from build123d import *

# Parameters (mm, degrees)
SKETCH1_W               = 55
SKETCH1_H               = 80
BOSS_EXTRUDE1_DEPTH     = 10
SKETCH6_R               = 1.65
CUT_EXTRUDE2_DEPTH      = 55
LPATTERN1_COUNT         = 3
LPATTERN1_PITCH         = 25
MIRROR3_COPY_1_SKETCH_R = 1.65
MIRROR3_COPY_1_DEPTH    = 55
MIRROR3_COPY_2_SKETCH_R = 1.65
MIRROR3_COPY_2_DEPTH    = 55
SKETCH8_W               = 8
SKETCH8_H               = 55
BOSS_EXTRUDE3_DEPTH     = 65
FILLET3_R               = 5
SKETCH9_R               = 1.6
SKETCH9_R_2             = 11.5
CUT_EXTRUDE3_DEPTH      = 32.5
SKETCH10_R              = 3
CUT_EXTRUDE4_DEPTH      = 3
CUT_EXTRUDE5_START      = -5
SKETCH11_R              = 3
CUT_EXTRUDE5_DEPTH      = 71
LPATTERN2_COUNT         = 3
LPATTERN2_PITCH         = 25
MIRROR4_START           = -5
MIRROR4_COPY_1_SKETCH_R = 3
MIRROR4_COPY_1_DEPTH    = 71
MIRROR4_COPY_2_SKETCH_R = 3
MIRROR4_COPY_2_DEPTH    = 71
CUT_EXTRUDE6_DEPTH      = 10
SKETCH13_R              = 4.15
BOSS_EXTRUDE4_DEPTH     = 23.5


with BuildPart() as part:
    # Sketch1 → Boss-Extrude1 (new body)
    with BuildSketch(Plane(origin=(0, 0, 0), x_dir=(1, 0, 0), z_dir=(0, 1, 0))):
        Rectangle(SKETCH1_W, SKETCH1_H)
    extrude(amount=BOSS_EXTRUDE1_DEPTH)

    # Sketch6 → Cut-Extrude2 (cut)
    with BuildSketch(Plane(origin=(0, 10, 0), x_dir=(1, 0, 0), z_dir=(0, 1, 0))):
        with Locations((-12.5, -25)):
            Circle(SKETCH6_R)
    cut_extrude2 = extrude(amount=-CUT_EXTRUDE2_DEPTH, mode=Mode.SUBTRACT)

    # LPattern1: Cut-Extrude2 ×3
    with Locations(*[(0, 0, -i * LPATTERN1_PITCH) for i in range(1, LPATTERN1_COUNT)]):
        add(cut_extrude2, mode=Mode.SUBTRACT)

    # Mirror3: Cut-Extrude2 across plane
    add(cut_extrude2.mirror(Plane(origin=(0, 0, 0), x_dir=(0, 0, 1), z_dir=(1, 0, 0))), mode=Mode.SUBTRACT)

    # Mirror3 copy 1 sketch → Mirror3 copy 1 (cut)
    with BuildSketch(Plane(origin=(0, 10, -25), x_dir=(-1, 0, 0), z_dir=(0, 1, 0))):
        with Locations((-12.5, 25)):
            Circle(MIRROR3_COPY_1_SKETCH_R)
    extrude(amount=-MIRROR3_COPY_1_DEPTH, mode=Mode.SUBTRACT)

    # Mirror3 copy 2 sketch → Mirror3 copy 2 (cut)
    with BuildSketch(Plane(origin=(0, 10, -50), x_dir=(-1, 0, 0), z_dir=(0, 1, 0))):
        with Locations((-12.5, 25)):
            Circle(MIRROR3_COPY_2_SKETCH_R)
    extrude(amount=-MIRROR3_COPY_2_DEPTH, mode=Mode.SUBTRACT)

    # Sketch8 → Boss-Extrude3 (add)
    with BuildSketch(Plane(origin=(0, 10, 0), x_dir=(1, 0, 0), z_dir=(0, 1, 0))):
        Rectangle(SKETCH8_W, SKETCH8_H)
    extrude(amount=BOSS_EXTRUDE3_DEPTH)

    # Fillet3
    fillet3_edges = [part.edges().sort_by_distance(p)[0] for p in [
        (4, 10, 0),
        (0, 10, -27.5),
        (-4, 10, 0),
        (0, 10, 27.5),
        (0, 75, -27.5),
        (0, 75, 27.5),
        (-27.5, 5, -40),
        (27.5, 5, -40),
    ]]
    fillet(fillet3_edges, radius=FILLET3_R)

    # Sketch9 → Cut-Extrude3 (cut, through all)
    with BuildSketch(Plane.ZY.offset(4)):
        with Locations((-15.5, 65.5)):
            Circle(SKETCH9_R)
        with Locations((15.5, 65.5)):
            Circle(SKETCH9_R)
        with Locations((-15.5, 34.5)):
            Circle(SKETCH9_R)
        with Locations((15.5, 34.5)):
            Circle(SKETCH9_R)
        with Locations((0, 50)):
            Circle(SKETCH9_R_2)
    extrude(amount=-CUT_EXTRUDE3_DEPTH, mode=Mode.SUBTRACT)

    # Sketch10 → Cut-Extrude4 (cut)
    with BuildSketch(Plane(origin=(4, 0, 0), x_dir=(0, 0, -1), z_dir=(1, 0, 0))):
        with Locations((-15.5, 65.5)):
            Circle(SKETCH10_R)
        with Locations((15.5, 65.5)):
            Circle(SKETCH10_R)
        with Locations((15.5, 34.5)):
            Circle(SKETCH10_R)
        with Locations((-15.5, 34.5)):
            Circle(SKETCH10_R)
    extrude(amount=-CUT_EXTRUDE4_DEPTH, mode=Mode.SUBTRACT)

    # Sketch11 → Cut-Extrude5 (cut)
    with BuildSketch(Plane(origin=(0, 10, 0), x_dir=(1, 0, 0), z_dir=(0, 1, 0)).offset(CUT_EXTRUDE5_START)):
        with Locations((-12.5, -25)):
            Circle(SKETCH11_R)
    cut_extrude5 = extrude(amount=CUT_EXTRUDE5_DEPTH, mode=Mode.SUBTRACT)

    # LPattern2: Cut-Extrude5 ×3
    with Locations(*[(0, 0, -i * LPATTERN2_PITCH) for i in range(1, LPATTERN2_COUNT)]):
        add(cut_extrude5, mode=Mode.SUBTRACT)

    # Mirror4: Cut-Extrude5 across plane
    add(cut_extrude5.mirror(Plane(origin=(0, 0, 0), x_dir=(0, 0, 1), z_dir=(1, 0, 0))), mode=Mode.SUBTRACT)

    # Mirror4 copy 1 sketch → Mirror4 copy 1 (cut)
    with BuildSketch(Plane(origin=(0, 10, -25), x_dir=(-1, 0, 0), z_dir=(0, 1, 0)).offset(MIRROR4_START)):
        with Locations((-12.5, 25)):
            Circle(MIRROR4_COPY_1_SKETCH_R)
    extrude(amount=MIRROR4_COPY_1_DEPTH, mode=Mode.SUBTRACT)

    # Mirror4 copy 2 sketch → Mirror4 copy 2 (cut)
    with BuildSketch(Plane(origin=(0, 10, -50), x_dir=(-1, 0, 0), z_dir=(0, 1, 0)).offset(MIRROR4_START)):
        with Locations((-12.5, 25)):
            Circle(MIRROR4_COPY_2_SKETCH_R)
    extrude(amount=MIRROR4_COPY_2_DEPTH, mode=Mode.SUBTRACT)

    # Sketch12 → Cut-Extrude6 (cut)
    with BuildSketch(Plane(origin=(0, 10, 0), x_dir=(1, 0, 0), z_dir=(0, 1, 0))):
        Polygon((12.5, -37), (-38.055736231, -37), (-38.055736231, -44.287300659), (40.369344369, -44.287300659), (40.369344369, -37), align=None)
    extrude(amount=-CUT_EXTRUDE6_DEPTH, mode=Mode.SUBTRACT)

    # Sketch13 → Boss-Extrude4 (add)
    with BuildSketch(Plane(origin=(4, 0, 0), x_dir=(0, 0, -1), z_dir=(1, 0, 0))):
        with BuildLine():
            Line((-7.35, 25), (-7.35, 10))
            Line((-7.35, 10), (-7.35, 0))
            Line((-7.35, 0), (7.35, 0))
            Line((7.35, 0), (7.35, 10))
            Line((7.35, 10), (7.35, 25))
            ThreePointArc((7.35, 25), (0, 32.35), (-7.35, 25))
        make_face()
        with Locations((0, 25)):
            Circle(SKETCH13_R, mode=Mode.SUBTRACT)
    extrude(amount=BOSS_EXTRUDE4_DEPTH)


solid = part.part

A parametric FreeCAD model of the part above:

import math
import FreeCAD as App
import Part
import Sketcher
from FreeCAD import Vector
Q = App.Units.Quantity


def edges_at(feature, points):
    """Names of the edges that pass closest to the given points."""
    edges = feature.Shape.Edges
    near = lambda p: min(range(len(edges)), key=lambda i: edges[i].distToShape(Part.Vertex(*p))[0])
    return sorted({f"Edge{near(p) + 1}" for p in points})

doc = App.newDocument("Part")
body = doc.addObject("PartDesign::Body", "Body")

# Sketch on XZ plane
sketch1 = body.newObject("Sketcher::SketchObject", "Sketch")
sketch1.AttachmentSupport = (doc.getObject("XZ_Plane"), [""])
sketch1.MapMode = "FlatFace"
sketch1.addGeometry(Part.LineSegment(Vector(-28, -40, 0), Vector(-28, 40, 0)), False)
sketch1.addGeometry(Part.LineSegment(Vector(-28, 40, 0), Vector(28, 40, 0)), False)
sketch1.addGeometry(Part.LineSegment(Vector(28, 40, 0), Vector(28, -40, 0)), False)
sketch1.addGeometry(Part.LineSegment(Vector(28, -40, 0), Vector(-28, -40, 0)), False)
sketch1.addConstraint(Sketcher.Constraint("Coincident", 0, 2, 1, 1))
sketch1.addConstraint(Sketcher.Constraint("Coincident", 1, 2, 2, 1))
sketch1.addConstraint(Sketcher.Constraint("Coincident", 2, 2, 3, 1))
sketch1.addConstraint(Sketcher.Constraint("Coincident", 3, 2, 0, 1))
sketch1.addConstraint(Sketcher.Constraint("Vertical", 0))
sketch1.addConstraint(Sketcher.Constraint("Horizontal", 1))
sketch1.addConstraint(Sketcher.Constraint("Vertical", 2))
sketch1.addConstraint(Sketcher.Constraint("Horizontal", 3))
sketch1.addConstraint(Sketcher.Constraint("Symmetric", 0, 2, 2, 2, -1, 1))
sketch1.addConstraint(Sketcher.Constraint("DistanceX", 1, 1, 1, 2, Q("55 mm")))
sketch1.addConstraint(Sketcher.Constraint("DistanceY", 0, 1, 0, 2, Q("80 mm")))
pad1 = body.newObject("PartDesign::Pad", "Pad")
pad1.Profile = sketch1
pad1.Length = 10
pad1.Reversed = True

# Sketch on XZ plane
sketch2 = body.newObject("Sketcher::SketchObject", "Sketch001")
sketch2.AttachmentSupport = (doc.getObject("XZ_Plane"), [""])
sketch2.MapMode = "FlatFace"
sketch2.AttachmentOffset = App.Placement(Vector(0, 0, -10), App.Rotation())
sketch2.addGeometry(Part.Circle(Vector(-12.5, 25, 0), Vector(0, 0, 1), 1.6), False)
sketch2.addConstraint(Sketcher.Constraint("Diameter", 0, Q("3.3 mm")))
sketch2.addConstraint(Sketcher.Constraint("DistanceY", -1, 1, 0, 3, Q("25 mm")))
sketch2.addConstraint(Sketcher.Constraint("DistanceX", 0, 3, -1, 1, Q("12.5 mm")))
pocket1 = body.newObject("PartDesign::Pocket", "Pocket")
pocket1.Profile = sketch2
pocket1.Length = 55
pocket1.Reversed = True
doc.recompute()

linearpattern = body.newObject("PartDesign::LinearPattern", "LinearPattern")
linearpattern.Originals = [pocket1]
linearpattern.Direction = (doc.getObject("Z_Axis"), [""])
linearpattern.Mode = "offset"
linearpattern.Offset = 25
linearpattern.Occurrences = 3
linearpattern.Reversed = True
body.Tip = linearpattern
doc.recompute()

mirrored = body.newObject("PartDesign::Mirrored", "Mirrored")
mirrored.Originals = [pocket1]
mirrored.MirrorPlane = (doc.getObject("YZ_Plane"), [""])
body.Tip = mirrored

# Sketch on XZ plane
sketch3 = body.newObject("Sketcher::SketchObject", "Sketch002")
sketch3.AttachmentSupport = (doc.getObject("XZ_Plane"), [""])
sketch3.MapMode = "FlatFace"
sketch3.AttachmentOffset = App.Placement(Vector(0, 0, -10), App.Rotation())
sketch3.addGeometry(Part.Circle(Vector(12.5, 0, 0), Vector(0, 0, 1), 1.6), False)
sketch3.addConstraint(Sketcher.Constraint("PointOnObject", 0, 3, -1))
sketch3.addConstraint(Sketcher.Constraint("Diameter", 0, Q("3.3 mm")))
sketch3.addConstraint(Sketcher.Constraint("DistanceX", -1, 1, 0, 3, Q("12.5 mm")))
pocket2 = body.newObject("PartDesign::Pocket", "Pocket001")
pocket2.Profile = sketch3
pocket2.Length = 55
pocket2.Reversed = True

# Sketch on XZ plane
sketch4 = body.newObject("Sketcher::SketchObject", "Sketch003")
sketch4.AttachmentSupport = (doc.getObject("XZ_Plane"), [""])
sketch4.MapMode = "FlatFace"
sketch4.AttachmentOffset = App.Placement(Vector(0, 0, -10), App.Rotation())
sketch4.addGeometry(Part.Circle(Vector(12.5, -25, 0), Vector(0, 0, 1), 1.6), False)
sketch4.addConstraint(Sketcher.Constraint("Diameter", 0, Q("3.3 mm")))
sketch4.addConstraint(Sketcher.Constraint("DistanceY", 0, 3, -1, 1, Q("25 mm")))
sketch4.addConstraint(Sketcher.Constraint("DistanceX", -1, 1, 0, 3, Q("12.5 mm")))
pocket3 = body.newObject("PartDesign::Pocket", "Pocket002")
pocket3.Profile = sketch4
pocket3.Length = 55
pocket3.Reversed = True

# Sketch on XZ plane
sketch5 = body.newObject("Sketcher::SketchObject", "Sketch004")
sketch5.AttachmentSupport = (doc.getObject("XZ_Plane"), [""])
sketch5.MapMode = "FlatFace"
sketch5.AttachmentOffset = App.Placement(Vector(0, 0, -10), App.Rotation())
sketch5.addGeometry(Part.LineSegment(Vector(-4, -28, 0), Vector(-4, 28, 0)), False)
sketch5.addGeometry(Part.LineSegment(Vector(-4, 28, 0), Vector(4, 28, 0)), False)
sketch5.addGeometry(Part.LineSegment(Vector(4, 28, 0), Vector(4, -28, 0)), False)
sketch5.addGeometry(Part.LineSegment(Vector(4, -28, 0), Vector(-4, -28, 0)), False)
sketch5.addConstraint(Sketcher.Constraint("Coincident", 0, 2, 1, 1))
sketch5.addConstraint(Sketcher.Constraint("Coincident", 1, 2, 2, 1))
sketch5.addConstraint(Sketcher.Constraint("Coincident", 2, 2, 3, 1))
sketch5.addConstraint(Sketcher.Constraint("Coincident", 3, 2, 0, 1))
sketch5.addConstraint(Sketcher.Constraint("Vertical", 0))
sketch5.addConstraint(Sketcher.Constraint("Horizontal", 1))
sketch5.addConstraint(Sketcher.Constraint("Vertical", 2))
sketch5.addConstraint(Sketcher.Constraint("Horizontal", 3))
sketch5.addConstraint(Sketcher.Constraint("Symmetric", 0, 2, 2, 2, -1, 1))
sketch5.addConstraint(Sketcher.Constraint("DistanceX", 1, 1, 1, 2, Q("8 mm")))
sketch5.addConstraint(Sketcher.Constraint("DistanceY", 0, 1, 0, 2, Q("55 mm")))
pad2 = body.newObject("PartDesign::Pad", "Pad001")
pad2.Profile = sketch5
pad2.Length = 65
pad2.Reversed = True
doc.recompute()

fillet = body.newObject("PartDesign::Fillet", "Fillet")
fillet.Base = (pad2, edges_at(pad2, [
    (4, 10, 0),
    (0, 10, -27.5),
    (-4, 10, 0),
    (0, 10, 27.5),
    (0, 75, -27.5),
    (0, 75, 27.5),
    (-27.5, 5, -40),
    (27.5, 5, -40),
]))
fillet.Radius = 5

# Sketch on YZ plane
sketch6 = body.newObject("Sketcher::SketchObject", "Sketch005")
sketch6.AttachmentSupport = (doc.getObject("YZ_Plane"), [""])
sketch6.MapMode = "FlatFace"
sketch6.AttachmentOffset = App.Placement(Vector(0, 0, -4), App.Rotation())
sketch6.addGeometry(Part.Circle(Vector(65.5, -15.5, 0), Vector(0, 0, 1), 1.6), False)
sketch6.addGeometry(Part.Circle(Vector(65.5, 15.5, 0), Vector(0, 0, 1), 1.6), False)
sketch6.addGeometry(Part.Circle(Vector(34.5, -15.5, 0), Vector(0, 0, 1), 1.6), False)
sketch6.addGeometry(Part.Circle(Vector(34.5, 15.5, 0), Vector(0, 0, 1), 1.6), False)
sketch6.addGeometry(Part.Circle(Vector(50, 0, 0), Vector(0, 0, 1), 11.5), False)
sketch6.addConstraint(Sketcher.Constraint("Equal", 0, 1))
sketch6.addConstraint(Sketcher.Constraint("Equal", 1, 2))
sketch6.addConstraint(Sketcher.Constraint("Equal", 2, 3))
sketch6.addConstraint(Sketcher.Constraint("Symmetric", 0, 3, 1, 3, -1))
sketch6.addConstraint(Sketcher.Constraint("Symmetric", 2, 3, 3, 3, -1))
sketch6.addConstraint(Sketcher.Constraint("PointOnObject", 4, 3, -1))
sketch6.addConstraint(Sketcher.Constraint("Horizontal", 0, 3, 2, 3))
sketch6.addConstraint(Sketcher.Constraint("Diameter", 4, Q("23 mm")))
sketch6.addConstraint(Sketcher.Constraint("Diameter", 0, Q("3.2 mm")))
sketch6.addConstraint(Sketcher.Constraint("DistanceX", -1, 1, 4, 3, Q("50 mm")))
sketch6.addConstraint(Sketcher.Constraint("DistanceY", 0, 3, 1, 3, Q("31 mm")))
sketch6.addConstraint(Sketcher.Constraint("DistanceX", 2, 3, 0, 3, Q("31 mm")))
sketch6.addConstraint(Sketcher.Constraint("DistanceX", -1, 1, 0, 3, Q("65.5 mm")))
pocket4 = body.newObject("PartDesign::Pocket", "Pocket003")
pocket4.Profile = sketch6
pocket4.Type = "ThroughAll"
pocket4.Reversed = True

# Sketch on YZ plane
sketch7 = body.newObject("Sketcher::SketchObject", "Sketch006")
sketch7.AttachmentSupport = (doc.getObject("YZ_Plane"), [""])
sketch7.MapMode = "FlatFace"
sketch7.AttachmentOffset = App.Placement(Vector(0, 0, 4), App.Rotation())
sketch7.addGeometry(Part.Circle(Vector(65.5, 15.5, 0), Vector(0, 0, 1), 3), False)
sketch7.addGeometry(Part.Circle(Vector(65.5, -15.5, 0), Vector(0, 0, 1), 3), False)
sketch7.addGeometry(Part.Circle(Vector(34.5, -15.5, 0), Vector(0, 0, 1), 3), False)
sketch7.addGeometry(Part.Circle(Vector(34.5, 15.5, 0), Vector(0, 0, 1), 3), False)
sketch7.addConstraint(Sketcher.Constraint("Equal", 0, 1))
sketch7.addConstraint(Sketcher.Constraint("Equal", 1, 2))
sketch7.addConstraint(Sketcher.Constraint("Equal", 2, 3))
sketch7.addConstraint(Sketcher.Constraint("Symmetric", 0, 3, 1, 3, -1))
sketch7.addConstraint(Sketcher.Constraint("Symmetric", 2, 3, 3, 3, -1))
sketch7.addConstraint(Sketcher.Constraint("Horizontal", 1, 3, 2, 3))
sketch7.addConstraint(Sketcher.Constraint("Diameter", 0, Q("6 mm")))
sketch7.addConstraint(Sketcher.Constraint("DistanceY", 1, 3, 0, 3, Q("31 mm")))
sketch7.addConstraint(Sketcher.Constraint("DistanceX", 2, 3, 1, 3, Q("31 mm")))
sketch7.addConstraint(Sketcher.Constraint("DistanceX", -1, 1, 0, 3, Q("65.5 mm")))
pocket5 = body.newObject("PartDesign::Pocket", "Pocket004")
pocket5.Profile = sketch7
pocket5.Length = 3

# Sketch on XZ plane
sketch8 = body.newObject("Sketcher::SketchObject", "Sketch007")
sketch8.AttachmentSupport = (doc.getObject("XZ_Plane"), [""])
sketch8.MapMode = "FlatFace"
sketch8.AttachmentOffset = App.Placement(Vector(0, 0, -5), App.Rotation())
sketch8.addGeometry(Part.Circle(Vector(-12.5, 25, 0), Vector(0, 0, 1), 3), False)
sketch8.addConstraint(Sketcher.Constraint("Diameter", 0, Q("6 mm")))
sketch8.addConstraint(Sketcher.Constraint("DistanceY", -1, 1, 0, 3, Q("25 mm")))
sketch8.addConstraint(Sketcher.Constraint("DistanceX", 0, 3, -1, 1, Q("12.5 mm")))
pocket6 = body.newObject("PartDesign::Pocket", "Pocket005")
pocket6.Profile = sketch8
pocket6.Length = 71
doc.recompute()

linearpattern2 = body.newObject("PartDesign::LinearPattern", "LinearPattern001")
linearpattern2.Originals = [pocket6]
linearpattern2.Direction = (doc.getObject("Z_Axis"), [""])
linearpattern2.Mode = "offset"
linearpattern2.Offset = 25
linearpattern2.Occurrences = 3
linearpattern2.Reversed = True
body.Tip = linearpattern2
doc.recompute()

mirrored2 = body.newObject("PartDesign::Mirrored", "Mirrored001")
mirrored2.Originals = [pocket6]
mirrored2.MirrorPlane = (doc.getObject("YZ_Plane"), [""])
body.Tip = mirrored2

# Sketch on XZ plane
sketch9 = body.newObject("Sketcher::SketchObject", "Sketch008")
sketch9.AttachmentSupport = (doc.getObject("XZ_Plane"), [""])
sketch9.MapMode = "FlatFace"
sketch9.AttachmentOffset = App.Placement(Vector(0, 0, -5), App.Rotation())
sketch9.addGeometry(Part.Circle(Vector(12.5, 0, 0), Vector(0, 0, 1), 3), False)
sketch9.addConstraint(Sketcher.Constraint("PointOnObject", 0, 3, -1))
sketch9.addConstraint(Sketcher.Constraint("Diameter", 0, Q("6 mm")))
sketch9.addConstraint(Sketcher.Constraint("DistanceX", -1, 1, 0, 3, Q("12.5 mm")))
pocket7 = body.newObject("PartDesign::Pocket", "Pocket006")
pocket7.Profile = sketch9
pocket7.Length = 71

# Sketch on XZ plane
sketch10 = body.newObject("Sketcher::SketchObject", "Sketch009")
sketch10.AttachmentSupport = (doc.getObject("XZ_Plane"), [""])
sketch10.MapMode = "FlatFace"
sketch10.AttachmentOffset = App.Placement(Vector(0, 0, -5), App.Rotation())
sketch10.addGeometry(Part.Circle(Vector(12.5, -25, 0), Vector(0, 0, 1), 3), False)
sketch10.addConstraint(Sketcher.Constraint("Diameter", 0, Q("6 mm")))
sketch10.addConstraint(Sketcher.Constraint("DistanceY", 0, 3, -1, 1, Q("25 mm")))
sketch10.addConstraint(Sketcher.Constraint("DistanceX", -1, 1, 0, 3, Q("12.5 mm")))
pocket8 = body.newObject("PartDesign::Pocket", "Pocket007")
pocket8.Profile = sketch10
pocket8.Length = 71

# Sketch on XZ plane
sketch11 = body.newObject("Sketcher::SketchObject", "Sketch010")
sketch11.AttachmentSupport = (doc.getObject("XZ_Plane"), [""])
sketch11.MapMode = "FlatFace"
sketch11.AttachmentOffset = App.Placement(Vector(0, 0, -10), App.Rotation())
sketch11.addGeometry(Part.LineSegment(Vector(-38, 37, 0), Vector(-38, 44, 0)), False)
sketch11.addGeometry(Part.LineSegment(Vector(-38, 44, 0), Vector(40, 44, 0)), False)
sketch11.addGeometry(Part.LineSegment(Vector(40, 44, 0), Vector(40, 37, 0)), False)
sketch11.addGeometry(Part.LineSegment(Vector(40, 37, 0), Vector(-38, 37, 0)), False)
sketch11.addConstraint(Sketcher.Constraint("Coincident", 0, 2, 1, 1))
sketch11.addConstraint(Sketcher.Constraint("Coincident", 1, 2, 2, 1))
sketch11.addConstraint(Sketcher.Constraint("Coincident", 2, 2, 3, 1))
sketch11.addConstraint(Sketcher.Constraint("Coincident", 3, 2, 0, 1))
sketch11.addConstraint(Sketcher.Constraint("Vertical", 0))
sketch11.addConstraint(Sketcher.Constraint("Horizontal", 1))
sketch11.addConstraint(Sketcher.Constraint("Vertical", 2))
sketch11.addConstraint(Sketcher.Constraint("Horizontal", 3))
sketch11.addConstraint(Sketcher.Constraint("DistanceY", -1, 1, 2, 2, Q("37 mm")))
sketch11.addConstraint(Sketcher.Constraint("DistanceY", 0, 1, 0, 2, Q("7.287301 mm")))
sketch11.addConstraint(Sketcher.Constraint("DistanceX", 1, 1, 1, 2, Q("78.425081 mm")))
sketch11.addConstraint(Sketcher.Constraint("DistanceX", 0, 2, -1, 1, Q("38.055736 mm")))
pocket9 = body.newObject("PartDesign::Pocket", "Pocket008")
pocket9.Profile = sketch11
pocket9.Length = 10
pocket9.Reversed = True

# Sketch on YZ plane
sketch12 = body.newObject("Sketcher::SketchObject", "Sketch011")
sketch12.AttachmentSupport = (doc.getObject("YZ_Plane"), [""])
sketch12.MapMode = "FlatFace"
sketch12.AttachmentOffset = App.Placement(Vector(0, 0, 4), App.Rotation())
sketch12.addGeometry(Part.LineSegment(Vector(25, 7.3, 0), Vector(0, 7.3, 0)), False)
sketch12.addGeometry(Part.LineSegment(Vector(0, 7.3, 0), Vector(0, -7.3, 0)), False)
sketch12.addGeometry(Part.LineSegment(Vector(0, -7.3, 0), Vector(25, -7.3, 0)), False)
sketch12.addGeometry(Part.ArcOfCircle(Part.Circle(Vector(25, 0, 0), Vector(0, 0, 1), 7.3), math.radians(-90), math.radians(90)), False)
sketch12.addGeometry(Part.Circle(Vector(25, 0, 0), Vector(0, 0, 1), 4.2), False)
sketch12.addConstraint(Sketcher.Constraint("Coincident", 0, 2, 1, 1))
sketch12.addConstraint(Sketcher.Constraint("Coincident", 1, 2, 2, 1))
sketch12.addConstraint(Sketcher.Constraint("Tangent", 2, 2, 3, 1))
sketch12.addConstraint(Sketcher.Constraint("Tangent", 3, 2, 0, 1))
sketch12.addConstraint(Sketcher.Constraint("Horizontal", 0))
sketch12.addConstraint(Sketcher.Constraint("Vertical", 1))
sketch12.addConstraint(Sketcher.Constraint("Horizontal", 2))
sketch12.addConstraint(Sketcher.Constraint("Coincident", 4, 3, 3, 3))
sketch12.addConstraint(Sketcher.Constraint("Symmetric", 0, 2, 1, 2, -1, 1))
sketch12.addConstraint(Sketcher.Constraint("Diameter", 4, Q("8.3 mm")))
sketch12.addConstraint(Sketcher.Constraint("DistanceX", 0, 2, 0, 1, Q("25 mm")))
sketch12.addConstraint(Sketcher.Constraint("Radius", 3, Q("7.35 mm")))
pad3 = body.newObject("PartDesign::Pad", "Pad002")
pad3.Profile = sketch12
pad3.Length = 23.5

doc.recompute()
